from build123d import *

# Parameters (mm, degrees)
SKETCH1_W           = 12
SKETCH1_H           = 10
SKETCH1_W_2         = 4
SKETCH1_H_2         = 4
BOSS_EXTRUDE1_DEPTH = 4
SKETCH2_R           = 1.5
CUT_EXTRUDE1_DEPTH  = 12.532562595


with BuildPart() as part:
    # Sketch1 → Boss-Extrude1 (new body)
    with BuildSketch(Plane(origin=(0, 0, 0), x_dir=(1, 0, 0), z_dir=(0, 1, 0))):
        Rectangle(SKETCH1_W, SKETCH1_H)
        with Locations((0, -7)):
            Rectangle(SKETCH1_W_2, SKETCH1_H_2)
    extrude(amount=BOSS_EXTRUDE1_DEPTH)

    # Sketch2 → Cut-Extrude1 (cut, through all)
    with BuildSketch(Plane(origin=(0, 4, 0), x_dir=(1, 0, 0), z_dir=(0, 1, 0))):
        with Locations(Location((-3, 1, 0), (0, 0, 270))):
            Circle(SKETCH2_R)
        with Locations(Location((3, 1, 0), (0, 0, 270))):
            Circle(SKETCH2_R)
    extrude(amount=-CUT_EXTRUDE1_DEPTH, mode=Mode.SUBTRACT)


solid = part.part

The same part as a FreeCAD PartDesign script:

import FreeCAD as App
import Part
import Sketcher
from FreeCAD import Vector

doc = App.newDocument("Part")
body = doc.addObject("PartDesign::Body", "Body")

sketch1 = body.newObject("Sketcher::SketchObject", "Sketch")
sketch1.AttachmentSupport = (doc.getObject("XZ_Plane"), [""])
sketch1.MapMode = "FlatFace"
sketch1.addGeometry([
    Part.LineSegment(Vector(-6, -5, 0), Vector(-6, 5, 0)),
    Part.LineSegment(Vector(-6, 5, 0), Vector(-2, 5, 0)),
    Part.LineSegment(Vector(-2, 5, 0), Vector(-2, 9, 0)),
    Part.LineSegment(Vector(-2, 9, 0), Vector(2, 9, 0)),
    Part.LineSegment(Vector(2, 9, 0), Vector(2, 5, 0)),
    Part.LineSegment(Vector(2, 5, 0), Vector(6, 5, 0)),
    Part.LineSegment(Vector(6, 5, 0), Vector(6, -5, 0)),
    Part.LineSegment(Vector(6, -5, 0), Vector(-6, -5, 0)),
], False)
sketch1.addConstraint([
    Sketcher.Constraint("Coincident", 0, 2, 1, 1),
    Sketcher.Constraint("Coincident", 1, 2, 2, 1),
    Sketcher.Constraint("Coincident", 2, 2, 3, 1),
    Sketcher.Constraint("Coincident", 3, 2, 4, 1),
    Sketcher.Constraint("Coincident", 4, 2, 5, 1),
    Sketcher.Constraint("Coincident", 5, 2, 6, 1),
    Sketcher.Constraint("Coincident", 6, 2, 7, 1),
    Sketcher.Constraint("Coincident", 7, 2, 0, 1),
    Sketcher.Constraint("Vertical", 0),
    Sketcher.Constraint("Horizontal", 1),
    Sketcher.Constraint("Vertical", 2),
    Sketcher.Constraint("Horizontal", 3),
    Sketcher.Constraint("Vertical", 4),
    Sketcher.Constraint("Horizontal", 5),
    Sketcher.Constraint("Vertical", 6),
    Sketcher.Constraint("Horizontal", 7),
    Sketcher.Constraint("Symmetric", 0, 2, 6, 2, -1, 1),
    Sketcher.Constraint("Symmetric", 1, 2, 4, 2, -2),
    Sketcher.Constraint("Equal", 1, 3),
    Sketcher.Constraint("Equal", 5, 2),
    Sketcher.Constraint("DistanceX", 1, 1, 1, 2, 4.0),
    Sketcher.Constraint("DistanceY", 0, 1, 0, 2, 10.0),
])
pad1 = body.newObject("PartDesign::Pad", "Pad")
pad1.Profile = sketch1
pad1.Length = 4
pad1.Reversed = True

sketch2 = body.newObject("Sketcher::SketchObject", "Sketch001")
sketch2.AttachmentSupport = (doc.getObject("XZ_Plane"), [""])
sketch2.MapMode = "FlatFace"
sketch2.AttachmentOffset = App.Placement(Vector(0, 0, -4), App.Rotation())
sketch2.addGeometry([
    Part.Circle(Vector(-3, -1, 0), Vector(0, 0, 1), 1.5),
    Part.Circle(Vector(3, -1, 0), Vector(0, 0, 1), 1.5),
], False)
sketch2.addConstraint([
    Sketcher.Constraint("Equal", 0, 1),
    Sketcher.Constraint("Symmetric", 0, 3, 1, 3, -2),
    Sketcher.Constraint("Diameter", 0, 3.0),
    Sketcher.Constraint("DistanceX", 0, 3, -1, 1, 3.0),
    Sketcher.Constraint("DistanceY", 0, 3, -1, 1, 1.0),
])
pocket1 = body.newObject("PartDesign::Pocket", "Pocket")
pocket1.Profile = sketch2
pocket1.Type = "ThroughAll"
pocket1.Reversed = True

doc.recompute()
